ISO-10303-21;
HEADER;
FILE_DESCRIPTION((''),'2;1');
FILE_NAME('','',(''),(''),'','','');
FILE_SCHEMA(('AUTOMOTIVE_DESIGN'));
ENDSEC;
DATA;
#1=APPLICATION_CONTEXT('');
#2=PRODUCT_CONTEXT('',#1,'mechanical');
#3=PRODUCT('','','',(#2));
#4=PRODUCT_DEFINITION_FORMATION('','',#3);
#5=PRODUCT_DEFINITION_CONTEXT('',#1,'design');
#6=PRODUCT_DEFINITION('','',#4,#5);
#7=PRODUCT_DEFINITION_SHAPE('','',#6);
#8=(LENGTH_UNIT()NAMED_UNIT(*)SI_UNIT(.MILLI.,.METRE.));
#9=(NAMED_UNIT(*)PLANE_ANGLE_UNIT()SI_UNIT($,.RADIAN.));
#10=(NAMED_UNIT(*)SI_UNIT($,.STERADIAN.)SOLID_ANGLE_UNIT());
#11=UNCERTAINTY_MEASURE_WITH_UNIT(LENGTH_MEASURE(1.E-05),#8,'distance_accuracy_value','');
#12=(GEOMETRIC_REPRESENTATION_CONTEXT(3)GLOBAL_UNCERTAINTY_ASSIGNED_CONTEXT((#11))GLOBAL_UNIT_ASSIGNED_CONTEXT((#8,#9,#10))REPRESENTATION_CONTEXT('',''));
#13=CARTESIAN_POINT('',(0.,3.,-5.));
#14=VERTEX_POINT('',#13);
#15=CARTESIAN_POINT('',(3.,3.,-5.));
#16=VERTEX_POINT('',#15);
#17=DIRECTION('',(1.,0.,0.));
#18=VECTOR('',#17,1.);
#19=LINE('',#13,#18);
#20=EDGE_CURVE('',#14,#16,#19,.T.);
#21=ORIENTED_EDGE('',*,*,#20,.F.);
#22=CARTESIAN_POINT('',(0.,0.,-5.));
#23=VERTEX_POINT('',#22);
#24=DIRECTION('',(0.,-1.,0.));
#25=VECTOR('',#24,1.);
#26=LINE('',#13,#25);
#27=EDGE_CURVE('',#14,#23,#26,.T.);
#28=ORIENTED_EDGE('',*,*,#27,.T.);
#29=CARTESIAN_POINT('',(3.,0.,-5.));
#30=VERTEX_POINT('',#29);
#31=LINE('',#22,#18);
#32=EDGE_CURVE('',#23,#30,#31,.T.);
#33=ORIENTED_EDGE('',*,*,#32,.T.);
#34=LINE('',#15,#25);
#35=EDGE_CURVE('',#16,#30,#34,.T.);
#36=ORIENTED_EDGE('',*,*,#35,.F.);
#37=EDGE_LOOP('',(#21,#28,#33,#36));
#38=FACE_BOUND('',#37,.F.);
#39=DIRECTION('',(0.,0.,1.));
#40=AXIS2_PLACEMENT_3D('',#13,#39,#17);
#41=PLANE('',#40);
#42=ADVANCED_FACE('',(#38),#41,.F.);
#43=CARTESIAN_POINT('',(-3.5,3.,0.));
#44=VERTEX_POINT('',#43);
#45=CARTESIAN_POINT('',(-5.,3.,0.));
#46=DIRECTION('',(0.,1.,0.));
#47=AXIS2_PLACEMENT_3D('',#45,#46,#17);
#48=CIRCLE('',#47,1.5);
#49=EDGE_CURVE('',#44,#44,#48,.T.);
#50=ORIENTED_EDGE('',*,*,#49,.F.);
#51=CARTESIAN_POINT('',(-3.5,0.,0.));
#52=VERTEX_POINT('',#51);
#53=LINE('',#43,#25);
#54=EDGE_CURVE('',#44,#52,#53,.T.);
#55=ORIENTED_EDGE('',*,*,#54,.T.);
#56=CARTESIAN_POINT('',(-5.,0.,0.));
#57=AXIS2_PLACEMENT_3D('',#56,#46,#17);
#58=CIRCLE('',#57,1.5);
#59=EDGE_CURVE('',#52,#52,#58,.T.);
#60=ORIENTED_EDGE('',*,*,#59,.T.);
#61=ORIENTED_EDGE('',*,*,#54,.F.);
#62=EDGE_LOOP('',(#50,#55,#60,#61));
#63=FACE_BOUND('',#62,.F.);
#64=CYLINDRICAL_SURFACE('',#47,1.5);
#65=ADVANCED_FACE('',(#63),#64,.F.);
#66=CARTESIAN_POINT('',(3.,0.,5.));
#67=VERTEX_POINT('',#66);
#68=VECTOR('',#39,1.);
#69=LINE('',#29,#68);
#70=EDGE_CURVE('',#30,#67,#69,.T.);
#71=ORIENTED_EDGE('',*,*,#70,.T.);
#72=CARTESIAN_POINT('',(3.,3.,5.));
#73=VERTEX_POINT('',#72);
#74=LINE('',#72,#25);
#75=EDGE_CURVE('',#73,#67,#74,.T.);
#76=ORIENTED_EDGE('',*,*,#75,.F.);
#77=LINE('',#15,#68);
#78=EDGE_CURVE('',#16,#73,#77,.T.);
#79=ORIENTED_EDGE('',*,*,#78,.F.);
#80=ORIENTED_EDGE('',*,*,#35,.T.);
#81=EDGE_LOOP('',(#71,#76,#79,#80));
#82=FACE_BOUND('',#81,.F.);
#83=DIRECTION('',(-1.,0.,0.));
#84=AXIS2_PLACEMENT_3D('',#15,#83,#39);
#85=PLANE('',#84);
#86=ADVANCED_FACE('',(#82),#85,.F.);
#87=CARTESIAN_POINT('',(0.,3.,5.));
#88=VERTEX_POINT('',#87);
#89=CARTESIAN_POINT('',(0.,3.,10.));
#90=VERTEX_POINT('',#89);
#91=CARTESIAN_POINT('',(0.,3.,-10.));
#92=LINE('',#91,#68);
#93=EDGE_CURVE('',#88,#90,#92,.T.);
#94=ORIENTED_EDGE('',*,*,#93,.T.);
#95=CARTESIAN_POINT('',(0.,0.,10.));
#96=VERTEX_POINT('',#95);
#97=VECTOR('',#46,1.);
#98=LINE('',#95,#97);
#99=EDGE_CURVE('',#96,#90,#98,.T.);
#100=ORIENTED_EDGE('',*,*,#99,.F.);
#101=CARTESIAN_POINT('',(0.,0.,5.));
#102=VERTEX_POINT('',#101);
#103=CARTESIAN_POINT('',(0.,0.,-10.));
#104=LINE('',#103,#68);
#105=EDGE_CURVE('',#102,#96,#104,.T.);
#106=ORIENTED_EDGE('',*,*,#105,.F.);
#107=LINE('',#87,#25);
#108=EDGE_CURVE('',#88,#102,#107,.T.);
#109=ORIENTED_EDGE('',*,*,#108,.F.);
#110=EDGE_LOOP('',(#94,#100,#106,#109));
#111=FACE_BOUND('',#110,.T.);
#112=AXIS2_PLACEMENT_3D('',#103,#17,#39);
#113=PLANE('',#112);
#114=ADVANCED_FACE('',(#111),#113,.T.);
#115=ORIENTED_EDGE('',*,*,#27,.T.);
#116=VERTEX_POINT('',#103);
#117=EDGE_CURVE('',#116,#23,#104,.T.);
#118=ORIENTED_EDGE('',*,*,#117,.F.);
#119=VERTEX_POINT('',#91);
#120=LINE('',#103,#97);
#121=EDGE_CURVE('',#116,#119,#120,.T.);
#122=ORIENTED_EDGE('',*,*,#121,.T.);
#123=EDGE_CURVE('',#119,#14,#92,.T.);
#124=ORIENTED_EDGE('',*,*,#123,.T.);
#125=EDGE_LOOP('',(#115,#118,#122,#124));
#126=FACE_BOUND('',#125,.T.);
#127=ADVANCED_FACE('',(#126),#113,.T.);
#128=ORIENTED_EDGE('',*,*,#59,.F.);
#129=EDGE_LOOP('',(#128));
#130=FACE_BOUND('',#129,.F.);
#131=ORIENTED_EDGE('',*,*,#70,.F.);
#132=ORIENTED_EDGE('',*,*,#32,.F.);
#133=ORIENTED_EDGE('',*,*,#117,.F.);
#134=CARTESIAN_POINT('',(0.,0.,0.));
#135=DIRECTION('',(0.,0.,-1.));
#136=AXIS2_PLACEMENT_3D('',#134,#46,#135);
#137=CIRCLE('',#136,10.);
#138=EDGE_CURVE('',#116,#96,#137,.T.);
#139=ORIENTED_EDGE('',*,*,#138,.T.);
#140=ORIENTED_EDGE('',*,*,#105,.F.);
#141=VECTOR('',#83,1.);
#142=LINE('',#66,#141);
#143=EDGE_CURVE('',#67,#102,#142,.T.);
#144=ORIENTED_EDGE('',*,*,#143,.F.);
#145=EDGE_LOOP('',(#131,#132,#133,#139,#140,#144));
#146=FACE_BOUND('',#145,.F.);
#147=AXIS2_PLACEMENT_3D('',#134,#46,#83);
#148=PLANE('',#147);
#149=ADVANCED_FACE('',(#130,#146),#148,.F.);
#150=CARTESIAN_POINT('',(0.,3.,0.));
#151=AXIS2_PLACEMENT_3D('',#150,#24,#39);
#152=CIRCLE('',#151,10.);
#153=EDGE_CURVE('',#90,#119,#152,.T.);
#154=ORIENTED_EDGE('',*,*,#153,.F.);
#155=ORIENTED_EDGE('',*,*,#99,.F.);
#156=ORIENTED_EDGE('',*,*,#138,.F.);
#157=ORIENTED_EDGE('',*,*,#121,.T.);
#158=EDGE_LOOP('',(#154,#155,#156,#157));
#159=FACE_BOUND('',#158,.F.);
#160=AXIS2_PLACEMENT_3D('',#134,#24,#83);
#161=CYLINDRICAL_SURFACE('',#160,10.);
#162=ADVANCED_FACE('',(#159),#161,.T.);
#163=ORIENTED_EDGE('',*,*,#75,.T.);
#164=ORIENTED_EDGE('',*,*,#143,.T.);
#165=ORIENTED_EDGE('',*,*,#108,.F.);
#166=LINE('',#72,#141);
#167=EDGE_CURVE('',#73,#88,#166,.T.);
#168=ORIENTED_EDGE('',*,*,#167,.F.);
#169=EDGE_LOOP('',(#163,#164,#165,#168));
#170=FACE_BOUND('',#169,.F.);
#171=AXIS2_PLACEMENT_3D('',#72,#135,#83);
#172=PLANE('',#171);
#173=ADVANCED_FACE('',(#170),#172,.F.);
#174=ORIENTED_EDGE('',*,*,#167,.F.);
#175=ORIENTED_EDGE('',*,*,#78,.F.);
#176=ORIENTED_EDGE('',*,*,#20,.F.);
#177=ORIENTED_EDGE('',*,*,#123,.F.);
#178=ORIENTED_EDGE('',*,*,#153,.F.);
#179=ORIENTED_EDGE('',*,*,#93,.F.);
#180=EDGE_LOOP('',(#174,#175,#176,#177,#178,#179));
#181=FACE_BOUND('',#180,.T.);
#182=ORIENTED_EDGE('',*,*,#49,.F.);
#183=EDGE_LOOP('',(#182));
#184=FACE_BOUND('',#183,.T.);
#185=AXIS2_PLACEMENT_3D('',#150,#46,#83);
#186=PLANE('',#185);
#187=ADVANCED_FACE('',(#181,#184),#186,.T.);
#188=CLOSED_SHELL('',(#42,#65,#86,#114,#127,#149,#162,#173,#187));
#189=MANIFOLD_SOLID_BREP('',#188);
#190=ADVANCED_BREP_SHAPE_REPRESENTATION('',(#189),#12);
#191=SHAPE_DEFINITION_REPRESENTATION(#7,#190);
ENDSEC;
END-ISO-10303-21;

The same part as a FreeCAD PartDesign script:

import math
import FreeCAD as App
import Part
import Sketcher
from FreeCAD import Vector
Q = App.Units.Quantity

doc = App.newDocument("Part")
body = doc.addObject("PartDesign::Body", "Body")

sketch1 = body.newObject("Sketcher::SketchObject", "Sketch")
sketch1.AttachmentSupport = (doc.getObject("XZ_Plane"), [""])
sketch1.MapMode = "FlatFace"
sketch1.addGeometry([
    Part.ArcOfCircle(Part.Circle(Vector(0, 0, 0), Vector(0, 0, 1), 10), math.radians(90), math.radians(270)),
    Part.LineSegment(Vector(0, 10, 0), Vector(0, -10, 0)),
], False)
sketch1.addConstraint([
    Sketcher.Constraint("Coincident", 0, 1, 1, 1),
    Sketcher.Constraint("Coincident", 1, 2, 0, 2),
    Sketcher.Constraint("Vertical", 1),
    Sketcher.Constraint("Coincident", 0, 3, -1, 1),
    Sketcher.Constraint("PointOnObject", 0, 1, -2),
    Sketcher.Constraint("Radius", 0, Q("10 mm")),
])
pad1 = body.newObject("PartDesign::Pad", "Pad")
pad1.Profile = sketch1
pad1.Length = 3
pad1.Reversed = True

sketch2 = body.newObject("Sketcher::SketchObject", "Sketch001")
sketch2.AttachmentSupport = (doc.getObject("XZ_Plane"), [""])
sketch2.MapMode = "FlatFace"
sketch2.AttachmentOffset = App.Placement(Vector(0, 0, -3), App.Rotation())
sketch2.addGeometry([
    Part.LineSegment(Vector(3, -5, 0), Vector(0, -5, 0)),
    Part.LineSegment(Vector(0, -5, 0), Vector(0, 5, 0)),
    Part.LineSegment(Vector(0, 5, 0), Vector(3, 5, 0)),
    Part.LineSegment(Vector(3, 5, 0), Vector(3, -5, 0)),
], False)
sketch2.addConstraint([
    Sketcher.Constraint("Coincident", 0, 2, 1, 1),
    Sketcher.Constraint("Coincident", 1, 2, 2, 1),
    Sketcher.Constraint("Coincident", 2, 2, 3, 1),
    Sketcher.Constraint("Coincident", 3, 2, 0, 1),
    Sketcher.Constraint("Horizontal", 0),
    Sketcher.Constraint("Vertical", 1),
    Sketcher.Constraint("Horizontal", 2),
    Sketcher.Constraint("Vertical", 3),
    Sketcher.Constraint("Symmetric", 0, 2, 1, 2, -1, 1),
    Sketcher.Constraint("DistanceX", 0, 2, 0, 1, Q("3 mm")),
    Sketcher.Constraint("DistanceY", 1, 1, 1, 2, Q("10 mm")),
])
pad2 = body.newObject("PartDesign::Pad", "Pad001")
pad2.Profile = sketch2
pad2.Length = 3

sketch3 = body.newObject("Sketcher::SketchObject", "Sketch002")
sketch3.AttachmentSupport = (doc.getObject("XZ_Plane"), [""])
sketch3.MapMode = "FlatFace"
sketch3.AttachmentOffset = App.Placement(Vector(0, 0, -3), App.Rotation())
sketch3.addGeometry(Part.Circle(Vector(-5, 0, 0), Vector(0, 0, 1), 1.5), False)
sketch3.addConstraint([
    Sketcher.Constraint("PointOnObject", 0, 3, -1),
    Sketcher.Constraint("Diameter", 0, Q("3 mm")),
    Sketcher.Constraint("DistanceX", 0, 3, -1, 1, Q("5 mm")),
])
pocket1 = body.newObject("PartDesign::Pocket", "Pocket")
pocket1.Profile = sketch3
pocket1.Length = 3
pocket1.Reversed = True

doc.recompute()
